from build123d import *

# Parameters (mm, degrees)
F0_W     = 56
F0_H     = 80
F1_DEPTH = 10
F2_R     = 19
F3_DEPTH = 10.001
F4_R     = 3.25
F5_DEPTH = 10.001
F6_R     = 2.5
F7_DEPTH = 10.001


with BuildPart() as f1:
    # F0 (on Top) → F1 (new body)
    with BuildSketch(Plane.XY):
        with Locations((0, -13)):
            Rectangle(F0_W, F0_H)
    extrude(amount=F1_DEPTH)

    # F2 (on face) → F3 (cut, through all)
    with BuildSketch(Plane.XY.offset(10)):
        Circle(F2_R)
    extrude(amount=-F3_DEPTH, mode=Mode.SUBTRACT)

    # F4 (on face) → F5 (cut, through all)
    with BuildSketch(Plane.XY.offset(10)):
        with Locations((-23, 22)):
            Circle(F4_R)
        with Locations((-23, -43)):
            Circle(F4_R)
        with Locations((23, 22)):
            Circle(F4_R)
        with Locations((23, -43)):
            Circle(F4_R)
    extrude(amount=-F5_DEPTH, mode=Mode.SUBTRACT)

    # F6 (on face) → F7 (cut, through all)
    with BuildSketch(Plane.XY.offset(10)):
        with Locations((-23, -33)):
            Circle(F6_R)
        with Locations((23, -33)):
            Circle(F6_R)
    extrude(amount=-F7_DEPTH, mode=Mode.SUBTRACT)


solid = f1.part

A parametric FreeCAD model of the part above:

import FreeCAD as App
import Part
import Sketcher
from FreeCAD import Vector
Q = App.Units.Quantity


def add_polygon(sketch, points):
    """Adds a closed chain of lines whose ends are joined by coincident constraints."""
    first, n = sketch.GeometryCount, len(points)
    for a, b in zip(points, points[1:] + points[:1]):
        sketch.addGeometry(Part.LineSegment(App.Vector(*a, 0), App.Vector(*b, 0)), False)
    for i in range(n):
        sketch.addConstraint(Sketcher.Constraint("Coincident", first + i, 2, first + (i + 1) % n, 1))

doc = App.newDocument("Part")
body = doc.addObject("PartDesign::Body", "Body")

# Sketch on XY plane
sketch1 = body.newObject("Sketcher::SketchObject", "Sketch")
sketch1.AttachmentSupport = (doc.getObject("XY_Plane"), [""])
sketch1.MapMode = "FlatFace"
add_polygon(sketch1, [(-28, 27), (-28, -53), (28, -53), (28, 27)])  # lines 0-3
sketch1.addConstraint([
    Sketcher.Constraint("Vertical", 0),
    Sketcher.Constraint("Horizontal", 1),
    Sketcher.Constraint("Vertical", 2),
    Sketcher.Constraint("Horizontal", 3),
    Sketcher.Constraint("DistanceX", 1, 1, 1, 2, Q("56 mm")),
    Sketcher.Constraint("DistanceY", 0, 2, 0, 1, Q("80 mm")),
    Sketcher.Constraint("DistanceX", 0, 2, -1, 1, Q("28 mm")),
    Sketcher.Constraint("DistanceY", 0, 2, -1, 1, Q("53 mm")),
])
pad1 = body.newObject("PartDesign::Pad", "Pad")
pad1.Profile = sketch1
pad1.Length = 10

# Sketch on XY plane
sketch2 = body.newObject("Sketcher::SketchObject", "Sketch001")
sketch2.AttachmentSupport = (doc.getObject("XY_Plane"), [""])
sketch2.MapMode = "FlatFace"
sketch2.AttachmentOffset = App.Placement(Vector(0, 0, 10), App.Rotation())
sketch2.addGeometry(Part.Circle(Vector(0, 0, 0), Vector(0, 0, 1), 19), False)
sketch2.addConstraint([
    Sketcher.Constraint("Coincident", 0, 3, -1, 1),
    Sketcher.Constraint("Diameter", 0, Q("38 mm")),
])
pocket1 = body.newObject("PartDesign::Pocket", "Pocket")
pocket1.Profile = sketch2
pocket1.Type = "ThroughAll"

# Sketch on XY plane
sketch3 = body.newObject("Sketcher::SketchObject", "Sketch002")
sketch3.AttachmentSupport = (doc.getObject("XY_Plane"), [""])
sketch3.MapMode = "FlatFace"
sketch3.AttachmentOffset = App.Placement(Vector(0, 0, 10), App.Rotation())
sketch3.addGeometry([
    Part.Circle(Vector(-23, 22, 0), Vector(0, 0, 1), 3.25),
    Part.Circle(Vector(-23, -43, 0), Vector(0, 0, 1), 3.25),
    Part.Circle(Vector(23, 22, 0), Vector(0, 0, 1), 3.25),
    Part.Circle(Vector(23, -43, 0), Vector(0, 0, 1), 3.25),
], False)
sketch3.addConstraint([
    Sketcher.Constraint("Equal", 0, 1),
    Sketcher.Constraint("Equal", 1, 2),
    Sketcher.Constraint("Equal", 2, 3),
    Sketcher.Constraint("Symmetric", 0, 3, 2, 3, -2),
    Sketcher.Constraint("Symmetric", 1, 3, 3, 3, -2),
    Sketcher.Constraint("Vertical", 0, 3, 1, 3),
    Sketcher.Constraint("Diameter", 0, Q("6.5 mm")),
    Sketcher.Constraint("DistanceX", 0, 3, -1, 1, Q("23 mm")),
    Sketcher.Constraint("DistanceY", -1, 1, 0, 3, Q("22 mm")),
    Sketcher.Constraint("DistanceY", 1, 3, -1, 1, Q("43 mm")),
])
pocket2 = body.newObject("PartDesign::Pocket", "Pocket001")
pocket2.Profile = sketch3
pocket2.Type = "ThroughAll"

# Sketch on XY plane
sketch4 = body.newObject("Sketcher::SketchObject", "Sketch003")
sketch4.AttachmentSupport = (doc.getObject("XY_Plane"), [""])
sketch4.MapMode = "FlatFace"
sketch4.AttachmentOffset = App.Placement(Vector(0, 0, 10), App.Rotation())
sketch4.addGeometry([
    Part.Circle(Vector(-23, -33, 0), Vector(0, 0, 1), 2.5),
    Part.Circle(Vector(23, -33, 0), Vector(0, 0, 1), 2.5),
], False)
sketch4.addConstraint([
    Sketcher.Constraint("Equal", 0, 1),
    Sketcher.Constraint("Symmetric", 0, 3, 1, 3, -2),
    Sketcher.Constraint("Diameter", 0, Q("5 mm")),
    Sketcher.Constraint("DistanceX", 0, 3, -1, 1, Q("23 mm")),
    Sketcher.Constraint("DistanceY", 0, 3, -1, 1, Q("33 mm")),
])
pocket3 = body.newObject("PartDesign::Pocket", "Pocket002")
pocket3.Profile = sketch4
pocket3.Type = "ThroughAll"

doc.recompute()
